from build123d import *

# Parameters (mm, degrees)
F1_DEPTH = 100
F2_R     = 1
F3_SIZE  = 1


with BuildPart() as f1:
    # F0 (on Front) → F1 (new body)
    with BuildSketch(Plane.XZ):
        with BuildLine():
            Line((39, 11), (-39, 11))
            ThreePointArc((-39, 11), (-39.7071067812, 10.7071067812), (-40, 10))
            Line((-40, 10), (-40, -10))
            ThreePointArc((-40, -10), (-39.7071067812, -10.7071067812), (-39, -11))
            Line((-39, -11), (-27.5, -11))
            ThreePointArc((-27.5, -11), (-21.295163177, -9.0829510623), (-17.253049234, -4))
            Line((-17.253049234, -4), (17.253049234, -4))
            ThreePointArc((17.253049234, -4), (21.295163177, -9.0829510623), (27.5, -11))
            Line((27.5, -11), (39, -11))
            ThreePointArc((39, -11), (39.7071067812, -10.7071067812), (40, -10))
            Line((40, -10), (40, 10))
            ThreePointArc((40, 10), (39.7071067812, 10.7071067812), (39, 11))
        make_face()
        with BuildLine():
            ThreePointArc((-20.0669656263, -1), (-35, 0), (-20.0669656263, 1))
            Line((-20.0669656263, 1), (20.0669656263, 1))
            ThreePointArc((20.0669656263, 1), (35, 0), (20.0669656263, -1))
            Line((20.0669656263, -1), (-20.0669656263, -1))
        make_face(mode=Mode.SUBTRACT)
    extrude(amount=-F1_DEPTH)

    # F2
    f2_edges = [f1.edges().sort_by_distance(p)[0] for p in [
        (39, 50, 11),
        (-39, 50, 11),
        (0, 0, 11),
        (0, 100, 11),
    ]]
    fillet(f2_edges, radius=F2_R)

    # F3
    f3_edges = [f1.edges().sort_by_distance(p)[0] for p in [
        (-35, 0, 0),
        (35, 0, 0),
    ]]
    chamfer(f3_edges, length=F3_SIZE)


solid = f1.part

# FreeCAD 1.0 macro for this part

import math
import FreeCAD as App
import Part
import Sketcher

V = App.Vector


def edges_at(feature, points):
    """Names of the edges that pass closest to the given points."""
    edges = feature.Shape.Edges
    near = lambda p: min(range(len(edges)), key=lambda i: edges[i].distToShape(Part.Vertex(*p))[0])
    return sorted({f"Edge{near(p) + 1}" for p in points})

doc = App.newDocument("Part")
body = doc.addObject("PartDesign::Body", "Body")

# Sketch on XZ plane
sketch1 = body.newObject("Sketcher::SketchObject", "Sketch")
sketch1.AttachmentSupport = (doc.getObject("XZ_Plane"), [""])
sketch1.MapMode = "FlatFace"
sketch1.addGeometry([
    Part.LineSegment(V(39, 11, 0), V(-39, 11, 0)),  # 0
    Part.ArcOfCircle(Part.Circle(V(-39, 10, 0), V(0, 0, 1), 1), math.radians(90), math.radians(180)),  # 1
    Part.LineSegment(V(-40, 10, 0), V(-40, -10, 0)),  # 2
    Part.ArcOfCircle(Part.Circle(V(-39, -10, 0), V(0, 0, 1), 1), math.radians(180), math.radians(270)),  # 3
    Part.LineSegment(V(-39, -11, 0), V(-27.5, -11, 0)),  # 4
    Part.ArcOfCircle(Part.Circle(V(-27.5, 0, 0), V(0, 0, 1), 11), math.radians(-90), math.radians(-21)),  # 5
    Part.LineSegment(V(-17.3, -4, 0), V(17.3, -4, 0)),  # 6
    Part.ArcOfCircle(Part.Circle(V(27.5, 0, 0), V(0, 0, 1), 11), math.radians(-159), math.radians(-90)),  # 7
    Part.LineSegment(V(27.5, -11, 0), V(39, -11, 0)),  # 8
    Part.ArcOfCircle(Part.Circle(V(39, -10, 0), V(0, 0, 1), 1), math.radians(-90), math.radians(0)),  # 9
    Part.LineSegment(V(40, -10, 0), V(40, 10, 0)),  # 10
    Part.ArcOfCircle(Part.Circle(V(39, 10, 0), V(0, 0, 1), 1), math.radians(0), math.radians(90)),  # 11
    Part.LineSegment(V(20.1, -1, 0), V(-20.1, -1, 0)),  # 12
    Part.ArcOfCircle(Part.Circle(V(-27.5, 0, 0), V(0, 0, 1), 7.5), math.radians(8), math.radians(352)),  # 13
    Part.LineSegment(V(-20.1, 1, 0), V(20.1, 1, 0)),  # 14
    Part.ArcOfCircle(Part.Circle(V(27.5, 0, 0), V(0, 0, 1), 7.5), math.radians(-172), math.radians(172)),  # 15
], False)
sketch1.addConstraint([
    Sketcher.Constraint("Tangent", 0, 2, 1, 1),
    Sketcher.Constraint("Tangent", 1, 2, 2, 1),
    Sketcher.Constraint("Tangent", 2, 2, 3, 1),
    Sketcher.Constraint("Tangent", 3, 2, 4, 1),
    Sketcher.Constraint("Tangent", 4, 2, 5, 1),
    Sketcher.Constraint("Coincident", 5, 2, 6, 1),
    Sketcher.Constraint("Coincident", 6, 2, 7, 1),
    Sketcher.Constraint("Tangent", 7, 2, 8, 1),
    Sketcher.Constraint("Tangent", 8, 2, 9, 1),
    Sketcher.Constraint("Tangent", 9, 2, 10, 1),
    Sketcher.Constraint("Tangent", 10, 2, 11, 1),
    Sketcher.Constraint("Tangent", 11, 2, 0, 1),
    Sketcher.Constraint("Coincident", 12, 2, 13, 2),
    Sketcher.Constraint("Coincident", 13, 1, 14, 1),
    Sketcher.Constraint("Coincident", 14, 2, 15, 2),
    Sketcher.Constraint("Coincident", 15, 1, 12, 1),
    Sketcher.Constraint("Horizontal", 0),
    Sketcher.Constraint("Vertical", 2),
    Sketcher.Constraint("Horizontal", 4),
    Sketcher.Constraint("Horizontal", 6),
    Sketcher.Constraint("Horizontal", 8),
    Sketcher.Constraint("Vertical", 10),
    Sketcher.Constraint("Horizontal", 12),
    Sketcher.Constraint("Horizontal", 14),
    Sketcher.Constraint("Coincident", 13, 3, 5, 3),
    Sketcher.Constraint("Coincident", 15, 3, 7, 3),
    Sketcher.Constraint("Equal", 1, 3),
    Sketcher.Constraint("Equal", 5, 7),
    Sketcher.Constraint("Equal", 3, 9),
    Sketcher.Constraint("Equal", 9, 11),
    Sketcher.Constraint("Equal", 13, 15),
    Sketcher.Constraint("Symmetric", 5, 3, 7, 3, -1, 1),
    Sketcher.Constraint("Symmetric", 1, 3, 9, 3, -1, 1),
    Sketcher.Constraint("Symmetric", 12, 2, 13, 1, -1),
    Sketcher.Constraint("Radius", 1, 1.0),
    Sketcher.Constraint("Radius", 5, 11.0),
    Sketcher.Constraint("Radius", 13, 7.5),
    Sketcher.Constraint("DistanceX", 0, 2, 0, 1, 78.0),
    Sketcher.Constraint("DistanceX", 4, 1, 4, 2, 11.5),
    Sketcher.Constraint("DistanceY", 5, 2, -1, 1, 4.0),
    Sketcher.Constraint("DistanceY", 12, 2, -1, 1, 1.0),
])
pad1 = body.newObject("PartDesign::Pad", "Pad")
pad1.Profile = sketch1
pad1.Length = 100
pad1.Reversed = True
doc.recompute()

fillet = body.newObject("PartDesign::Fillet", "Fillet")
fillet.Base = (pad1, edges_at(pad1, [
    (39, 50, 11),
    (-39, 50, 11),
    (0, 0, 11),
    (0, 100, 11),
]))
fillet.Radius = 1
doc.recompute()

chamfer = body.newObject("PartDesign::Chamfer", "Chamfer")
chamfer.Base = (fillet, edges_at(fillet, [(-35, 0, 0), (35, 0, 0)]))
chamfer.Size = 1

doc.recompute()
